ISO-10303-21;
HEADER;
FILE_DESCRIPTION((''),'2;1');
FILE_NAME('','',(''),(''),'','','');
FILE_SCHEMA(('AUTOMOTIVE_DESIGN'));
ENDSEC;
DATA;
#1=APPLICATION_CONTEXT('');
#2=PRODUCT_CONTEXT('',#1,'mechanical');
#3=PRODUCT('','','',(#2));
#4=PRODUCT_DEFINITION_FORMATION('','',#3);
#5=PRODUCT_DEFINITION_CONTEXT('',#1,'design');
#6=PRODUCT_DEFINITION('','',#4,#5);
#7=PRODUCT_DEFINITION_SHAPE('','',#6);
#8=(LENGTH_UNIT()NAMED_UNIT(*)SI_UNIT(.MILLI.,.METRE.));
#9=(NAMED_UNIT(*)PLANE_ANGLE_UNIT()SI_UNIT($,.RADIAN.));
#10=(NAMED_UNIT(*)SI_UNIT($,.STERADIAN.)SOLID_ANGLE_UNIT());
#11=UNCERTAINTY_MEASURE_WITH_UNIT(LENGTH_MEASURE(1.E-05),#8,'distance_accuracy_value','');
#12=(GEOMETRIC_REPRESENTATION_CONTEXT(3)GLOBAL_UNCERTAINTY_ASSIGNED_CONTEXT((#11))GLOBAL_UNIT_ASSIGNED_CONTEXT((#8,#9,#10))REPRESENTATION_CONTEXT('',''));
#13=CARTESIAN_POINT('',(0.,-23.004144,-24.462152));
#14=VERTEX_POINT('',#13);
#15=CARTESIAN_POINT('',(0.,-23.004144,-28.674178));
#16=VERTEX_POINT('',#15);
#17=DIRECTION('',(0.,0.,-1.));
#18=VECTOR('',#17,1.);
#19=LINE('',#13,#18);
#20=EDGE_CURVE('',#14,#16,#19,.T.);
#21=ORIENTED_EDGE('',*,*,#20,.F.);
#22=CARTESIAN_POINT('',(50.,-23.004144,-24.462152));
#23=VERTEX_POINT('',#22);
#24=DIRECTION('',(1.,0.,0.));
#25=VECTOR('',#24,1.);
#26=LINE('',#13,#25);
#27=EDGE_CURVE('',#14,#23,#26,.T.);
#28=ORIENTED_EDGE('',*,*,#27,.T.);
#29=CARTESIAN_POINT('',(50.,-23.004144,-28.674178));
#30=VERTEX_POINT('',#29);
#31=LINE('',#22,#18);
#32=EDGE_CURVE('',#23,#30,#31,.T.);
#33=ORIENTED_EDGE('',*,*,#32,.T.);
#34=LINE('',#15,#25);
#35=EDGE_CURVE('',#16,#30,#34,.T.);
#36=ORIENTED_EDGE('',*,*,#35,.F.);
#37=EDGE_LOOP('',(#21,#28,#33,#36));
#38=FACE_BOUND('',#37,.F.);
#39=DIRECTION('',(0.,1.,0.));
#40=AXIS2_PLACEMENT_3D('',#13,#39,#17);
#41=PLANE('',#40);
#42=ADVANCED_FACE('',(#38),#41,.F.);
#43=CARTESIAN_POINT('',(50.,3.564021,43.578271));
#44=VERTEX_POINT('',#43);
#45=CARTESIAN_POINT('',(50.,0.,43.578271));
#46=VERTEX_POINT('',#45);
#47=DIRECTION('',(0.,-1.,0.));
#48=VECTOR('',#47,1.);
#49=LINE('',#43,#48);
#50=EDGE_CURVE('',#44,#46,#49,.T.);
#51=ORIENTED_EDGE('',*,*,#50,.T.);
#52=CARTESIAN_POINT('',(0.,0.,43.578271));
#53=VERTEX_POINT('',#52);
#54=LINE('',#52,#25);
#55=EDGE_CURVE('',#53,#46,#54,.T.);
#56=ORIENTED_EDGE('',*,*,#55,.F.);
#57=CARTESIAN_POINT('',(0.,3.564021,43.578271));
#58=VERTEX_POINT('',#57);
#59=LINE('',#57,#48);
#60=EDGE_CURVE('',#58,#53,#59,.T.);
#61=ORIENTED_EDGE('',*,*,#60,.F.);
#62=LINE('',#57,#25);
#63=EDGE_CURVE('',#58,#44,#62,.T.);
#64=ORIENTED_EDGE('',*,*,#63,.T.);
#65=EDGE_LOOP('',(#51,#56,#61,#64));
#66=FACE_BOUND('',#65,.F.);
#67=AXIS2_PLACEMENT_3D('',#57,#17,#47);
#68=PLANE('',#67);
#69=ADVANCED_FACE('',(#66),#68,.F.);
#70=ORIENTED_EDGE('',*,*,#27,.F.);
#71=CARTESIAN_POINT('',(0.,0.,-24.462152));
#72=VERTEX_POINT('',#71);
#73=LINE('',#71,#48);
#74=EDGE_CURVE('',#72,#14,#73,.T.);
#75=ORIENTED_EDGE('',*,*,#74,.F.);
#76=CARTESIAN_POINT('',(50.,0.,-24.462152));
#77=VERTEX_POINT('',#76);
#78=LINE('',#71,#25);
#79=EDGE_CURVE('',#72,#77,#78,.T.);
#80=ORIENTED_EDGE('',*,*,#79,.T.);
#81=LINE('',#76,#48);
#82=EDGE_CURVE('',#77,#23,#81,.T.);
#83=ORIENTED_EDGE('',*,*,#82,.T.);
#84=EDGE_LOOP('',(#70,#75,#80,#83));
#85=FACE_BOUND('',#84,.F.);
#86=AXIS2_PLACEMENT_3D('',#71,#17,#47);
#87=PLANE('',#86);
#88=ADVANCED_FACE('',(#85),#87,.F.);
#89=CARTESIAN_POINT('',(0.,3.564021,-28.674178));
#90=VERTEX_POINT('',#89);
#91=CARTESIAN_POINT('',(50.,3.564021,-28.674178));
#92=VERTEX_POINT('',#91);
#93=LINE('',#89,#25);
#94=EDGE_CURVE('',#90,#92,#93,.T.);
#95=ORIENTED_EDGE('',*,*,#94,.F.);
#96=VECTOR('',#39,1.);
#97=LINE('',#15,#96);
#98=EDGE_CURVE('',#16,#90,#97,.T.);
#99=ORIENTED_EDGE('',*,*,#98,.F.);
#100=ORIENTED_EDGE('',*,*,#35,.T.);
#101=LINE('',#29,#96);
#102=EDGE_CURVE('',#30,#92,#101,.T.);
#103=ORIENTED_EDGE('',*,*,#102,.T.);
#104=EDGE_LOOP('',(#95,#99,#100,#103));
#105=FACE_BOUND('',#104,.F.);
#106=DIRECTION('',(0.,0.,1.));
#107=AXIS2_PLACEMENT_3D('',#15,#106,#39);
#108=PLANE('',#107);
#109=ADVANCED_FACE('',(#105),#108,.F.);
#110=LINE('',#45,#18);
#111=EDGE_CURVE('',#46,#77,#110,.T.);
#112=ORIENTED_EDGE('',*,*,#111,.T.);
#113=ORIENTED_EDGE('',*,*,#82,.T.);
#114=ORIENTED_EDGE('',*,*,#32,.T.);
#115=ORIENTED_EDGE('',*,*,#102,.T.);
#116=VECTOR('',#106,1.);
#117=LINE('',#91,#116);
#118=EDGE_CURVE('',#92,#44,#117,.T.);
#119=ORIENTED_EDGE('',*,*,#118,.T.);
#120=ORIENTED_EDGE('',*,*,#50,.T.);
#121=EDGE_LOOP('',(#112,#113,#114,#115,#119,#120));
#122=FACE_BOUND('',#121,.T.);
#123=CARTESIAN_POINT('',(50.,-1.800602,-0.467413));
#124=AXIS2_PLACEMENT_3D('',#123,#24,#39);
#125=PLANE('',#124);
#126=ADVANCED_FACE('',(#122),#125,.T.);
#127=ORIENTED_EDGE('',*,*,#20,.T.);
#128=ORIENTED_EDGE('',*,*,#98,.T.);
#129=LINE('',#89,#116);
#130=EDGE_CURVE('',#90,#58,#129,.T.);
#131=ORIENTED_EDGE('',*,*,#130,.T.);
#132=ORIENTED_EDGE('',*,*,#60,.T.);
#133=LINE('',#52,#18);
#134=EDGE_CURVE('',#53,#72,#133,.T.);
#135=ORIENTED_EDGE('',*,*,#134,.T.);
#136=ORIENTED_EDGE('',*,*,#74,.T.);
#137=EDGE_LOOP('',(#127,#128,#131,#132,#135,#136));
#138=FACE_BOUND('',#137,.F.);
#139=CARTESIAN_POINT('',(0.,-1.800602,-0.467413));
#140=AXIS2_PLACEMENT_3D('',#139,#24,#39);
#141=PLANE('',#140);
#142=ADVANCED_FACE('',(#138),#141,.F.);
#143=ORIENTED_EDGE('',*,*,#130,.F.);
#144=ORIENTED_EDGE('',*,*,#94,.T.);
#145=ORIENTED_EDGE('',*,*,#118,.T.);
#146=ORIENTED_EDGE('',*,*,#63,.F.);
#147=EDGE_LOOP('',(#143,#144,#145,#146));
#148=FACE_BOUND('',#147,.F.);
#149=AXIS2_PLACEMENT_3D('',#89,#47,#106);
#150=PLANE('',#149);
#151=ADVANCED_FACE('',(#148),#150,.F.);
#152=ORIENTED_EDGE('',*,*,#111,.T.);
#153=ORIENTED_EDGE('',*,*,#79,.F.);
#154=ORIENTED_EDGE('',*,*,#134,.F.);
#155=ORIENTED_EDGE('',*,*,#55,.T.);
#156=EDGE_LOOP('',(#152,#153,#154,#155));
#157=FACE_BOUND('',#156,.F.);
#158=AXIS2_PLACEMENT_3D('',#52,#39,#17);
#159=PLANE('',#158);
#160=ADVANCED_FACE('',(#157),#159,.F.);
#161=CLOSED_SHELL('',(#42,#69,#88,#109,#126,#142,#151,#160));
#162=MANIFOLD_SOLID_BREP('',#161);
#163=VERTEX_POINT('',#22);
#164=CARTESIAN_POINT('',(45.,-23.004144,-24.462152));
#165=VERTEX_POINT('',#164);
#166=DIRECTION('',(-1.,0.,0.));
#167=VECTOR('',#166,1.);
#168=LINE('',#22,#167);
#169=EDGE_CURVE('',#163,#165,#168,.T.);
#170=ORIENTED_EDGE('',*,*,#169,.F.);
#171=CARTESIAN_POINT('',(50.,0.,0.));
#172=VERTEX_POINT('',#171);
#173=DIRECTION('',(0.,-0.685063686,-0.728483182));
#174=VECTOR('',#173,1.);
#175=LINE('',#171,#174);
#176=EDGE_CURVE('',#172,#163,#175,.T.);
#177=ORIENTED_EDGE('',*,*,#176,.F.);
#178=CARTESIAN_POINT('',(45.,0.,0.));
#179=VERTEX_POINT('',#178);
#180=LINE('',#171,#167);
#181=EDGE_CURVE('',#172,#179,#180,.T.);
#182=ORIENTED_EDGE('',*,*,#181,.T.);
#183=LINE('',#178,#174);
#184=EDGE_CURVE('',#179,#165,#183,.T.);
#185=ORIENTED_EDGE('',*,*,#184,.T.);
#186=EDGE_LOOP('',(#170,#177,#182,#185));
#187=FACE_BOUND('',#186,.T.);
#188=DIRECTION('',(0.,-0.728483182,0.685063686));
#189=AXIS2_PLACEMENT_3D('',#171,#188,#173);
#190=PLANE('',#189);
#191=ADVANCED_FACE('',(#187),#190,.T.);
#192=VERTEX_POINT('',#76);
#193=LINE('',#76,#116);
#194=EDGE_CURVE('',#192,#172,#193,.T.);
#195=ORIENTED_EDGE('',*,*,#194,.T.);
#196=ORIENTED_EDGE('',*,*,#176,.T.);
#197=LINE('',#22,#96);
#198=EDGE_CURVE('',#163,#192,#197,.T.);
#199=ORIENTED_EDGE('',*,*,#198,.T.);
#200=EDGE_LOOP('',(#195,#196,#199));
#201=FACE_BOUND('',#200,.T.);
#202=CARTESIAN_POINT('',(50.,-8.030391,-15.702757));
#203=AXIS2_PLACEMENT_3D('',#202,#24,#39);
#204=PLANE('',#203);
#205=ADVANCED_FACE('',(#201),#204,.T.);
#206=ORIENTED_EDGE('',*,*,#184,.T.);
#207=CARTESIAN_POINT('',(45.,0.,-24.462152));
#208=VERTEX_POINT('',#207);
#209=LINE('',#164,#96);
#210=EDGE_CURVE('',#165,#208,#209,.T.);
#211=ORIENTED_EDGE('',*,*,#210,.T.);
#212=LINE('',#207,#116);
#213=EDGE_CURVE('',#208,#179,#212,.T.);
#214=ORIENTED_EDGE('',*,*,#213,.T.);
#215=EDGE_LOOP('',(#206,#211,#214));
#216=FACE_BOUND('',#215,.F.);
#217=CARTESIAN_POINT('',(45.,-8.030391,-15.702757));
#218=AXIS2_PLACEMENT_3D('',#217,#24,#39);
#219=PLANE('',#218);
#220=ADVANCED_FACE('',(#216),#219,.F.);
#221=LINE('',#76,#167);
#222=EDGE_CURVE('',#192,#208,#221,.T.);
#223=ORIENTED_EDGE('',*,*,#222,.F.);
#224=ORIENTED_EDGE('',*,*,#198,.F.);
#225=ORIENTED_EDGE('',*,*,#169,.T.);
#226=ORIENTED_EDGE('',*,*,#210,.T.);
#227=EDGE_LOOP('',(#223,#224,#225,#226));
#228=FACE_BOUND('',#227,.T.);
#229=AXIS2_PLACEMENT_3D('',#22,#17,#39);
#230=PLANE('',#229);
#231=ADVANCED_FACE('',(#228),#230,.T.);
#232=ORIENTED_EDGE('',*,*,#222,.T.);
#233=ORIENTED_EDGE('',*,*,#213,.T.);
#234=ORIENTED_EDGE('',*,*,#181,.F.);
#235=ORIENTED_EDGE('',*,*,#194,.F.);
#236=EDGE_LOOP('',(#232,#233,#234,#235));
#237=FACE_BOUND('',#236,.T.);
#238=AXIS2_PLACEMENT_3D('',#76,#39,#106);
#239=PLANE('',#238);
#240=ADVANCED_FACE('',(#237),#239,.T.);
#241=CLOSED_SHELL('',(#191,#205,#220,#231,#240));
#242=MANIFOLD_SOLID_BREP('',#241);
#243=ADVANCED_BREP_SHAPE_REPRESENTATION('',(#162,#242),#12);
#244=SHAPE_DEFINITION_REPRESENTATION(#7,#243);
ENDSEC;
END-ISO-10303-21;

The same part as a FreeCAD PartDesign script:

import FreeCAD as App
import Part
import Sketcher
from FreeCAD import Vector

doc = App.newDocument("Part")
params = doc.addObject("Spreadsheet::Sheet", "Params")
for row, (alias, value) in enumerate([
    ("pad1_length", "50 mm"),
    ("pad2_length", "5 mm"),
], start=1):
    params.set(f"A{row}", alias)
    params.set(f"B{row}", "=" + value)
    params.setAlias(f"B{row}", alias)

body = doc.addObject("PartDesign::Body", "Body")

sketch1 = body.newObject("Sketcher::SketchObject", "Sketch")
sketch1.AttachmentSupport = (doc.getObject("YZ_Plane"), [""])
sketch1.MapMode = "FlatFace"
sketch1.addGeometry([
    Part.LineSegment(Vector(3.564021, 43.578271, 0), Vector(0, 43.578271, 0)),
    Part.LineSegment(Vector(0, 43.578271, 0), Vector(0, -24.462152, 0)),
    Part.LineSegment(Vector(0, -24.462152, 0), Vector(-23.004144, -24.462152, 0)),
    Part.LineSegment(Vector(-23.004144, -24.462152, 0), Vector(-23.004144, -28.674178, 0)),
    Part.LineSegment(Vector(-23.004144, -28.674178, 0), Vector(3.564021, -28.674178, 0)),
    Part.LineSegment(Vector(3.564021, -28.674178, 0), Vector(3.564021, 43.578271, 0)),
], False)
sketch1.addConstraint([
    Sketcher.Constraint("Coincident", 0, 2, 1, 1),
    Sketcher.Constraint("Coincident", 1, 2, 2, 1),
    Sketcher.Constraint("Coincident", 2, 2, 3, 1),
    Sketcher.Constraint("Coincident", 3, 2, 4, 1),
    Sketcher.Constraint("Coincident", 4, 2, 5, 1),
    Sketcher.Constraint("Coincident", 5, 2, 0, 1),
    Sketcher.Constraint("Horizontal", 0),
    Sketcher.Constraint("Vertical", 1),
    Sketcher.Constraint("Horizontal", 2),
    Sketcher.Constraint("Vertical", 3),
    Sketcher.Constraint("Horizontal", 4),
    Sketcher.Constraint("Vertical", 5),
    Sketcher.Constraint("PointOnObject", 0, 2, -2),
    Sketcher.Constraint("DistanceX", 0, 2, 0, 1, 3.564021),
    Sketcher.Constraint("DistanceY", 5, 1, 5, 2, 72.252449),
    Sketcher.Constraint("DistanceX", 2, 2, 2, 1, 23.004144),
    Sketcher.Constraint("DistanceY", 1, 2, 1, 1, 68.040423),
    Sketcher.Constraint("DistanceY", -1, 1, 0, 2, 43.578271),
])
pad1 = body.newObject("PartDesign::Pad", "Pad")
pad1.Profile = sketch1
pad1.setExpression("Length", "Params.pad1_length")
body2 = doc.addObject("PartDesign::Body", "Body001")

sketch2 = body2.newObject("Sketcher::SketchObject", "Sketch001")
sketch2.AttachmentSupport = (doc.getObject("YZ_Plane001"), [""])
sketch2.MapMode = "FlatFace"
sketch2.AttachmentOffset = App.Placement(Vector(0, 0, 50), App.Rotation())
sketch2.addGeometry([
    Part.LineSegment(Vector(0, -24.462152, 0), Vector(0, 0, 0)),
    Part.LineSegment(Vector(0, 0, 0), Vector(-23.004144, -24.462152, 0)),
    Part.LineSegment(Vector(-23.004144, -24.462152, 0), Vector(0, -24.462152, 0)),
], False)
sketch2.addConstraint([
    Sketcher.Constraint("Coincident", 0, 2, 1, 1),
    Sketcher.Constraint("Coincident", 1, 2, 2, 1),
    Sketcher.Constraint("Coincident", 2, 2, 0, 1),
    Sketcher.Constraint("Vertical", 0),
    Sketcher.Constraint("Horizontal", 2),
    Sketcher.Constraint("Coincident", 0, 2, -1, 1),
    Sketcher.Constraint("DistanceY", 0, 1, 0, 2, 24.462152),
    Sketcher.Constraint("Distance", 1, 33.57957),
])
pad2 = body2.newObject("PartDesign::Pad", "Pad001")
pad2.Profile = sketch2
pad2.setExpression("Length", "Params.pad2_length")
pad2.Reversed = True

doc.recompute()
